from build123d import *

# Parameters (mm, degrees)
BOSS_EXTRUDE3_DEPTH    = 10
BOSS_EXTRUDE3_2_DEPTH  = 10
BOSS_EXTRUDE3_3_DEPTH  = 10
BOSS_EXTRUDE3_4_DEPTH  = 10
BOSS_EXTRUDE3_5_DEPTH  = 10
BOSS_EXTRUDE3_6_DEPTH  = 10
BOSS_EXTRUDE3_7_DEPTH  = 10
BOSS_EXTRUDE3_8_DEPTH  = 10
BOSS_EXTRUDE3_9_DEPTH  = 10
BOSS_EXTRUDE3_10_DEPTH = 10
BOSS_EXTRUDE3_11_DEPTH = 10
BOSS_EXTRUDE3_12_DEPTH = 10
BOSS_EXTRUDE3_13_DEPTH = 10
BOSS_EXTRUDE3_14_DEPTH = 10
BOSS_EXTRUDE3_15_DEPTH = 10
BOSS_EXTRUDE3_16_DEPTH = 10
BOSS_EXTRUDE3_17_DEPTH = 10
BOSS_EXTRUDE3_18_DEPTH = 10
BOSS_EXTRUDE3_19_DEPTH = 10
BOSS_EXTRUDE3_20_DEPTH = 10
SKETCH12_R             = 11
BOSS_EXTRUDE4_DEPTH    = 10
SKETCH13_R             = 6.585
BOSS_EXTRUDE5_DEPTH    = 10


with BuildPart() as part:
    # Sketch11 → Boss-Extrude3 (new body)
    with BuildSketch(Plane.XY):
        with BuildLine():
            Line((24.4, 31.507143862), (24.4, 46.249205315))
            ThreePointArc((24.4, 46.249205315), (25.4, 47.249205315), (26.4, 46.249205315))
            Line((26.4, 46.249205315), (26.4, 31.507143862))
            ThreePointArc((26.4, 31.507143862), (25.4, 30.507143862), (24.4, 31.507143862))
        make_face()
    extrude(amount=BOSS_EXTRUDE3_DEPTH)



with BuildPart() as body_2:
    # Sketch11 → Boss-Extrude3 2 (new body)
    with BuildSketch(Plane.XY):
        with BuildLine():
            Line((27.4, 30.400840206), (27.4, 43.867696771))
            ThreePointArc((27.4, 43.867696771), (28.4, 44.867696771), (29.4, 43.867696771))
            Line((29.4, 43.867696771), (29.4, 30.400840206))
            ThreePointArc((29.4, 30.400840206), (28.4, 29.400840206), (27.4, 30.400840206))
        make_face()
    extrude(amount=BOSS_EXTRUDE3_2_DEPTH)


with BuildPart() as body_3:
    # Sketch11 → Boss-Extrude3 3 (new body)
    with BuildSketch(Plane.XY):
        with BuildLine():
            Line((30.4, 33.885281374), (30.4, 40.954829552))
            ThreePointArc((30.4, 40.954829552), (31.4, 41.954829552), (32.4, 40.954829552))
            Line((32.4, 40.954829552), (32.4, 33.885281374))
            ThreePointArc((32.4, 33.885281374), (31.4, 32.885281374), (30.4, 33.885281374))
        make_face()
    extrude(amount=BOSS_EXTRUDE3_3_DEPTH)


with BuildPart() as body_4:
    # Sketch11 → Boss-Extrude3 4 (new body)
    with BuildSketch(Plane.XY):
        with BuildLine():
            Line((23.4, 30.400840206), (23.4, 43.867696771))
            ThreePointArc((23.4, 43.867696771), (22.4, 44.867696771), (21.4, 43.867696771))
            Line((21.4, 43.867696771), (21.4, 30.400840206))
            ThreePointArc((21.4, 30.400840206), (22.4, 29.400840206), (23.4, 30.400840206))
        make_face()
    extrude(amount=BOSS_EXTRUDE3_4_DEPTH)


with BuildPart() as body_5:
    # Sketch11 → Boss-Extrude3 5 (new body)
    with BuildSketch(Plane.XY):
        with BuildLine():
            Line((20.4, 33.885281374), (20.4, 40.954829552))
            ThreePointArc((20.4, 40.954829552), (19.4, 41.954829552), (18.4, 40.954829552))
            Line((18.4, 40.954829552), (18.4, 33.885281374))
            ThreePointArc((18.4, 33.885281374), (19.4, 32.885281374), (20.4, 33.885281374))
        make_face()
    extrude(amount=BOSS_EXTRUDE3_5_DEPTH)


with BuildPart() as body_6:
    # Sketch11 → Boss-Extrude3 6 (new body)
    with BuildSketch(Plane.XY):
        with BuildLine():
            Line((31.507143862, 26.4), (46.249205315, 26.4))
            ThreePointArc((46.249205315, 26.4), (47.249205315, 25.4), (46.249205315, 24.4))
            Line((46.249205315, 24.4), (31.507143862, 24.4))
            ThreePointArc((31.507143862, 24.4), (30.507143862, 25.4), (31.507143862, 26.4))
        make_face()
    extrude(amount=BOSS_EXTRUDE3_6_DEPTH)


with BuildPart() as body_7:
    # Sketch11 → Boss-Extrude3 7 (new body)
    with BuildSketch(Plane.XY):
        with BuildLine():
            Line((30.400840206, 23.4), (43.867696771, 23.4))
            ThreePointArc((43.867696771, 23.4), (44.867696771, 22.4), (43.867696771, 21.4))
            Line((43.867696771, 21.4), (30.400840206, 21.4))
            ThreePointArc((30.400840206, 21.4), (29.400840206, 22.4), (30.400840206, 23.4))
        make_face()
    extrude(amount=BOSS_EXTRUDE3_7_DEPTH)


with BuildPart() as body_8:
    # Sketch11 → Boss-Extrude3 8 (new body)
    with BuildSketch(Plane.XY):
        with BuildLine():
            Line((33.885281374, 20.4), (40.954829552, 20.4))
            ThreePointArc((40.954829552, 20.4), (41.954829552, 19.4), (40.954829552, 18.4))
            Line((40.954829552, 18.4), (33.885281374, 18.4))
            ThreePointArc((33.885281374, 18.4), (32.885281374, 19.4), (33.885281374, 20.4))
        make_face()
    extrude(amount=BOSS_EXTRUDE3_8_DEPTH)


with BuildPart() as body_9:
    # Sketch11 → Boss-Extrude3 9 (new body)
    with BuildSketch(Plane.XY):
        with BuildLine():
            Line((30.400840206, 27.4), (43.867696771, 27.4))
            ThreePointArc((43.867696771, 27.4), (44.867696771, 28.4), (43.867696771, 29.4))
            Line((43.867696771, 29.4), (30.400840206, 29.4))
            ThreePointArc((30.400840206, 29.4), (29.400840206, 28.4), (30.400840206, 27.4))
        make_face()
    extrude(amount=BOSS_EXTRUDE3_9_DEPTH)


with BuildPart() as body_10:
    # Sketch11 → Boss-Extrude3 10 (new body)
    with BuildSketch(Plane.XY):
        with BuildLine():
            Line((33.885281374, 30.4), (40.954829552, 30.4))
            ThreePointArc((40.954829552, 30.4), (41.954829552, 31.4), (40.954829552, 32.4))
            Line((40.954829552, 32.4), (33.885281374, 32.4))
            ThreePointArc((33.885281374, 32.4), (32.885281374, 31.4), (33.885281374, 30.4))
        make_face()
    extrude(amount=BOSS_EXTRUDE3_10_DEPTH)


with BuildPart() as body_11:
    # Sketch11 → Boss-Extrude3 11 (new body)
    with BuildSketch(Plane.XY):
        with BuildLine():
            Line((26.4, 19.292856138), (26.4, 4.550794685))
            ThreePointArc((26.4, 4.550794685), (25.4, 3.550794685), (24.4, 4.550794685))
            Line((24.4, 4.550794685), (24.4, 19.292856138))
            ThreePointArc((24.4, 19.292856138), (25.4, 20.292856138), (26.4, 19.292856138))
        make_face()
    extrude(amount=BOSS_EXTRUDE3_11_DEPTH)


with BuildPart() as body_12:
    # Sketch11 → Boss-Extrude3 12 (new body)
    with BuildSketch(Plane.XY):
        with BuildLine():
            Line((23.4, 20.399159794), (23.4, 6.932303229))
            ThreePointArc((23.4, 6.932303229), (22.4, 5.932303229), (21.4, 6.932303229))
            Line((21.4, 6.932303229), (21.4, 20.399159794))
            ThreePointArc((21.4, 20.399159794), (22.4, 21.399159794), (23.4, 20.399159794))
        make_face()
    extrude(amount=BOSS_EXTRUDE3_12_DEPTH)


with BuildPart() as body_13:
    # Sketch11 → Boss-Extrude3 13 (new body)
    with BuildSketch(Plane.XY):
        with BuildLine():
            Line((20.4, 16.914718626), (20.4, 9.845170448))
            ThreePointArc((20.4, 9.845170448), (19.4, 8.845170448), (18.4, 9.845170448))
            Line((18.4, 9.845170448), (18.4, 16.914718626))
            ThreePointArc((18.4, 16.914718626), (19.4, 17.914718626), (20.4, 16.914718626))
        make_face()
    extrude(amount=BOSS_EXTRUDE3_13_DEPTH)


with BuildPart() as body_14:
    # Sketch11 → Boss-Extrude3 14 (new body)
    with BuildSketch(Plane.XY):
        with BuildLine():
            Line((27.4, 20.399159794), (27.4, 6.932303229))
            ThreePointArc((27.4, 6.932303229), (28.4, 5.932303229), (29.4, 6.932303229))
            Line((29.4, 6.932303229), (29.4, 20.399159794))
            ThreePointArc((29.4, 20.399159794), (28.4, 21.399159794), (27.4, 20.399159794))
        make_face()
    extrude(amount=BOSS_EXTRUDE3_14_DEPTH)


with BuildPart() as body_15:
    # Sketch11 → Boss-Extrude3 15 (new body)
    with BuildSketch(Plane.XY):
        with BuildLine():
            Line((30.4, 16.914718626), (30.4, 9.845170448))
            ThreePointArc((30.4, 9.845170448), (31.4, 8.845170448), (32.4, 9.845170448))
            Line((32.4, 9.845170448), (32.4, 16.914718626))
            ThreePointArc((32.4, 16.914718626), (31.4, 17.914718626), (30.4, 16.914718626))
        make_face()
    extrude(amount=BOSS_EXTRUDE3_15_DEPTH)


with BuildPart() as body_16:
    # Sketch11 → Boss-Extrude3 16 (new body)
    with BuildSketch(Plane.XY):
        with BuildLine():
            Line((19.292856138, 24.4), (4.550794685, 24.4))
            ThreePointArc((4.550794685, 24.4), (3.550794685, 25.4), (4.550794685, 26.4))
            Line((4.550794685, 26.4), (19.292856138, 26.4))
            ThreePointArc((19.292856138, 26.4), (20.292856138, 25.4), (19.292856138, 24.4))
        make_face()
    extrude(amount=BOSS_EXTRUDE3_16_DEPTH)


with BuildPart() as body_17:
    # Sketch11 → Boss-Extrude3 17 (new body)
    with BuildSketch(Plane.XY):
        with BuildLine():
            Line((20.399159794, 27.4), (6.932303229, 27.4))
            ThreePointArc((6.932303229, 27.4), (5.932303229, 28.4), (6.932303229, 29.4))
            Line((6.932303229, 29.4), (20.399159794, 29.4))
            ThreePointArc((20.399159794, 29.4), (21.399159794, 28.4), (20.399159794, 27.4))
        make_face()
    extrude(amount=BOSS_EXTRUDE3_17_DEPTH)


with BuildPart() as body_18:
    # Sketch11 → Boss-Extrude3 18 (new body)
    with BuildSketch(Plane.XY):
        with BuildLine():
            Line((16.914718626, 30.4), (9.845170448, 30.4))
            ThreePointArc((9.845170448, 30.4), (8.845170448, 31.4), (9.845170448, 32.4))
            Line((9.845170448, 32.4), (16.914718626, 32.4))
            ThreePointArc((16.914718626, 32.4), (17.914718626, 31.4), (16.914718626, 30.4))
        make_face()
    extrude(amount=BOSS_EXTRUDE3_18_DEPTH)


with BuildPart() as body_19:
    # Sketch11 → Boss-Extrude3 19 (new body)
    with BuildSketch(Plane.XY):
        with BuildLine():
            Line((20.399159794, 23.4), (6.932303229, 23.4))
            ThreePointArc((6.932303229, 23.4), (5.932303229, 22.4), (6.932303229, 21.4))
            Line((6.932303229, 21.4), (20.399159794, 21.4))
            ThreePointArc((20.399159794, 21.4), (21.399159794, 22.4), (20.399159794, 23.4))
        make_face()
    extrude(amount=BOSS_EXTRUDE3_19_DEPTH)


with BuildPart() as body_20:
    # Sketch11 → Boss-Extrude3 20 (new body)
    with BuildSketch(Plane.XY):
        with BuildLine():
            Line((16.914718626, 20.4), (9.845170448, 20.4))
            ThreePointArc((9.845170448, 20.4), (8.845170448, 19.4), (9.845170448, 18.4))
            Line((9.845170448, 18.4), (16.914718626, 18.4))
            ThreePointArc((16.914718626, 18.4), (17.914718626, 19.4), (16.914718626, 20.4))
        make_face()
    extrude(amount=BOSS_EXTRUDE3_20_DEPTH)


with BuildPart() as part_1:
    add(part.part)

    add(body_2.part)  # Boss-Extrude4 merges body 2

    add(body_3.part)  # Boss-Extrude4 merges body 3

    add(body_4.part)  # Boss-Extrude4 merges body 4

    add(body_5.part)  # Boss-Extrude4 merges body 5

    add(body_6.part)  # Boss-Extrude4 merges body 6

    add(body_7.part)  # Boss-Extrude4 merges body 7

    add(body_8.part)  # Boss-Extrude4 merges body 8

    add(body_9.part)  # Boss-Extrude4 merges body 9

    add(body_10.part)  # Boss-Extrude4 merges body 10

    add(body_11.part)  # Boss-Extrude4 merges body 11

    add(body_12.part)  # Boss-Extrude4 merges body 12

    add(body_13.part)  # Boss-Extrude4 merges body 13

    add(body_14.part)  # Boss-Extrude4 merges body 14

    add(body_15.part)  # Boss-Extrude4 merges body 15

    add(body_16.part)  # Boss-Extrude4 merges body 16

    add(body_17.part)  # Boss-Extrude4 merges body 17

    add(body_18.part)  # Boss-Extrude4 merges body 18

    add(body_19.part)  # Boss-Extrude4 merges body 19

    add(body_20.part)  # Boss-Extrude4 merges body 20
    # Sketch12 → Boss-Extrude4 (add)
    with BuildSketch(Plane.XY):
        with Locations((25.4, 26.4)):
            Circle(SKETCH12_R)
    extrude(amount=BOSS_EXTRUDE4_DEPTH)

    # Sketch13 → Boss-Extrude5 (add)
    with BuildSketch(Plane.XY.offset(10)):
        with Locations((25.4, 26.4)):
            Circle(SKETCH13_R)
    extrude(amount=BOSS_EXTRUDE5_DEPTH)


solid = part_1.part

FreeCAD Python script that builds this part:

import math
import FreeCAD as App
import Part
import Sketcher
Q = App.Units.Quantity

doc = App.newDocument("Part")
params = doc.addObject("Spreadsheet::Sheet", "Params")
for row, (alias, value) in enumerate([
    ("sketch1_radius", "1 mm"),
    ("pad1_length", "10 mm"),
    ("sketch2_radius", "1 mm"),
    ("pad2_length", "10 mm"),
    ("sketch3_radius", "1 mm"),
    ("pad3_length", "10 mm"),
    ("sketch4_radius", "1 mm"),
    ("pad4_length", "10 mm"),
    ("sketch5_radius", "1 mm"),
    ("pad5_length", "10 mm"),
    ("sketch6_radius", "1 mm"),
    ("pad6_length", "10 mm"),
    ("sketch7_radius", "1 mm"),
    ("pad7_length", "10 mm"),
    ("sketch8_radius", "1 mm"),
    ("pad8_length", "10 mm"),
    ("sketch9_radius", "1 mm"),
    ("pad9_length", "10 mm"),
    ("sketch10_radius", "1 mm"),
    ("pad10_length", "10 mm"),
    ("sketch11_radius", "1 mm"),
    ("pad11_length", "10 mm"),
    ("sketch12_radius", "1 mm"),
    ("pad12_length", "10 mm"),
    ("sketch13_radius", "1 mm"),
    ("pad13_length", "10 mm"),
    ("sketch14_radius", "1 mm"),
    ("pad14_length", "10 mm"),
    ("sketch15_radius", "1 mm"),
    ("pad15_length", "10 mm"),
    ("sketch16_radius", "1 mm"),
    ("pad16_length", "10 mm"),
    ("sketch17_radius", "1 mm"),
    ("pad17_length", "10 mm"),
    ("sketch18_radius", "1 mm"),
    ("pad18_length", "10 mm"),
    ("sketch19_radius", "1 mm"),
    ("pad19_length", "10 mm"),
    ("sketch20_radius", "1 mm"),
    ("pad20_length", "10 mm"),
    ("sketch21_diameter", "22 mm"),
    ("pad21_length", "10 mm"),
    ("sketch22_diameter", "13.17 mm"),
    ("pad22_length", "10 mm"),
], start=1):
    params.set(f"A{row}", alias)
    params.set(f"B{row}", "=" + value)
    params.setAlias(f"B{row}", alias)

body = doc.addObject("PartDesign::Body", "Body")

sketch1 = body.newObject("Sketcher::SketchObject", "Sketch")
sketch1.AttachmentSupport = (doc.getObject("XY_Plane"), [""])
sketch1.MapMode = "FlatFace"
sketch1.addGeometry([
    Part.LineSegment(App.Vector(24.4, 46.2, 0), App.Vector(24.4, 31.5, 0)),
    Part.ArcOfCircle(Part.Circle(App.Vector(25.4, 31.5, 0), App.Vector(0, 0, 1), 1), math.radians(180), math.radians(360)),
    Part.LineSegment(App.Vector(26.4, 31.5, 0), App.Vector(26.4, 46.2, 0)),
    Part.ArcOfCircle(Part.Circle(App.Vector(25.4, 46.2, 0), App.Vector(0, 0, 1), 1), math.radians(0), math.radians(180)),
], False)
sketch1.addConstraint([
    Sketcher.Constraint("Tangent", 0, 2, 1, 1),
    Sketcher.Constraint("Tangent", 1, 2, 2, 1),
    Sketcher.Constraint("Tangent", 2, 2, 3, 1),
    Sketcher.Constraint("Tangent", 3, 2, 0, 1),
    Sketcher.Constraint("Vertical", 0),
    Sketcher.Constraint("Vertical", 2),
    Sketcher.Constraint("Radius", 1, Q("1 mm")),
    Sketcher.Constraint("DistanceX", -1, 1, 1, 3, Q("25.4 mm")),
    Sketcher.Constraint("DistanceY", 0, 2, 0, 1, Q("14.742061 mm")),
    Sketcher.Constraint("DistanceY", -1, 1, 1, 3, Q("31.507144 mm")),
])
sketch1.setExpression("Constraints[6]", "Params.sketch1_radius")
pad1 = body.newObject("PartDesign::Pad", "Pad")
pad1.Profile = sketch1
pad1.setExpression("Length", "Params.pad1_length")
body2 = doc.addObject("PartDesign::Body", "Body001")

sketch2 = body2.newObject("Sketcher::SketchObject", "Sketch001")
sketch2.AttachmentSupport = (doc.getObject("XY_Plane001"), [""])
sketch2.MapMode = "FlatFace"
sketch2.addGeometry([
    Part.LineSegment(App.Vector(27.4, 43.9, 0), App.Vector(27.4, 30.4, 0)),
    Part.ArcOfCircle(Part.Circle(App.Vector(28.4, 30.4, 0), App.Vector(0, 0, 1), 1), math.radians(180), math.radians(360)),
    Part.LineSegment(App.Vector(29.4, 30.4, 0), App.Vector(29.4, 43.9, 0)),
    Part.ArcOfCircle(Part.Circle(App.Vector(28.4, 43.9, 0), App.Vector(0, 0, 1), 1), math.radians(0), math.radians(180)),
], False)
sketch2.addConstraint([
    Sketcher.Constraint("Tangent", 0, 2, 1, 1),
    Sketcher.Constraint("Tangent", 1, 2, 2, 1),
    Sketcher.Constraint("Tangent", 2, 2, 3, 1),
    Sketcher.Constraint("Tangent", 3, 2, 0, 1),
    Sketcher.Constraint("Vertical", 0),
    Sketcher.Constraint("Vertical", 2),
    Sketcher.Constraint("Radius", 1, Q("1 mm")),
    Sketcher.Constraint("DistanceX", -1, 1, 1, 3, Q("28.4 mm")),
    Sketcher.Constraint("DistanceY", 0, 2, 0, 1, Q("13.466857 mm")),
    Sketcher.Constraint("DistanceY", -1, 1, 1, 3, Q("30.40084 mm")),
])
sketch2.setExpression("Constraints[6]", "Params.sketch2_radius")
pad2 = body2.newObject("PartDesign::Pad", "Pad001")
pad2.Profile = sketch2
pad2.setExpression("Length", "Params.pad2_length")
body3 = doc.addObject("PartDesign::Body", "Body002")

sketch3 = body3.newObject("Sketcher::SketchObject", "Sketch002")
sketch3.AttachmentSupport = (doc.getObject("XY_Plane002"), [""])
sketch3.MapMode = "FlatFace"
sketch3.addGeometry([
    Part.LineSegment(App.Vector(30.4, 41, 0), App.Vector(30.4, 33.9, 0)),
    Part.ArcOfCircle(Part.Circle(App.Vector(31.4, 33.9, 0), App.Vector(0, 0, 1), 1), math.radians(180), math.radians(360)),
    Part.LineSegment(App.Vector(32.4, 33.9, 0), App.Vector(32.4, 41, 0)),
    Part.ArcOfCircle(Part.Circle(App.Vector(31.4, 41, 0), App.Vector(0, 0, 1), 1), math.radians(0), math.radians(180)),
], False)
sketch3.addConstraint([
    Sketcher.Constraint("Tangent", 0, 2, 1, 1),
    Sketcher.Constraint("Tangent", 1, 2, 2, 1),
    Sketcher.Constraint("Tangent", 2, 2, 3, 1),
    Sketcher.Constraint("Tangent", 3, 2, 0, 1),
    Sketcher.Constraint("Vertical", 0),
    Sketcher.Constraint("Vertical", 2),
    Sketcher.Constraint("Radius", 1, Q("1 mm")),
    Sketcher.Constraint("DistanceX", -1, 1, 1, 3, Q("31.4 mm")),
    Sketcher.Constraint("DistanceY", 0, 2, 0, 1, Q("7.069548 mm")),
    Sketcher.Constraint("DistanceY", -1, 1, 1, 3, Q("33.885281 mm")),
])
sketch3.setExpression("Constraints[6]", "Params.sketch3_radius")
pad3 = body3.newObject("PartDesign::Pad", "Pad002")
pad3.Profile = sketch3
pad3.setExpression("Length", "Params.pad3_length")
body4 = doc.addObject("PartDesign::Body", "Body003")

sketch4 = body4.newObject("Sketcher::SketchObject", "Sketch003")
sketch4.AttachmentSupport = (doc.getObject("XY_Plane003"), [""])
sketch4.MapMode = "FlatFace"
sketch4.addGeometry([
    Part.LineSegment(App.Vector(23.4, 30.4, 0), App.Vector(23.4, 43.9, 0)),
    Part.ArcOfCircle(Part.Circle(App.Vector(22.4, 43.9, 0), App.Vector(0, 0, 1), 1), math.radians(0), math.radians(180)),
    Part.LineSegment(App.Vector(21.4, 43.9, 0), App.Vector(21.4, 30.4, 0)),
    Part.ArcOfCircle(Part.Circle(App.Vector(22.4, 30.4, 0), App.Vector(0, 0, 1), 1), math.radians(180), math.radians(360)),
], False)
sketch4.addConstraint([
    Sketcher.Constraint("Tangent", 0, 2, 1, 1),
    Sketcher.Constraint("Tangent", 1, 2, 2, 1),
    Sketcher.Constraint("Tangent", 2, 2, 3, 1),
    Sketcher.Constraint("Tangent", 3, 2, 0, 1),
    Sketcher.Constraint("Vertical", 0),
    Sketcher.Constraint("Vertical", 2),
    Sketcher.Constraint("Radius", 1, Q("1 mm")),
    Sketcher.Constraint("DistanceX", -1, 1, 1, 3, Q("22.4 mm")),
    Sketcher.Constraint("DistanceY", 0, 1, 0, 2, Q("13.466857 mm")),
    Sketcher.Constraint("DistanceY", -1, 1, 3, 3, Q("30.40084 mm")),
])
sketch4.setExpression("Constraints[6]", "Params.sketch4_radius")
pad4 = body4.newObject("PartDesign::Pad", "Pad003")
pad4.Profile = sketch4
pad4.setExpression("Length", "Params.pad4_length")
body5 = doc.addObject("PartDesign::Body", "Body004")

sketch5 = body5.newObject("Sketcher::SketchObject", "Sketch004")
sketch5.AttachmentSupport = (doc.getObject("XY_Plane004"), [""])
sketch5.MapMode = "FlatFace"
sketch5.addGeometry([
    Part.LineSegment(App.Vector(20.4, 33.9, 0), App.Vector(20.4, 41, 0)),
    Part.ArcOfCircle(Part.Circle(App.Vector(19.4, 41, 0), App.Vector(0, 0, 1), 1), math.radians(0), math.radians(180)),
    Part.LineSegment(App.Vector(18.4, 41, 0), App.Vector(18.4, 33.9, 0)),
    Part.ArcOfCircle(Part.Circle(App.Vector(19.4, 33.9, 0), App.Vector(0, 0, 1), 1), math.radians(180), math.radians(360)),
], False)
sketch5.addConstraint([
    Sketcher.Constraint("Tangent", 0, 2, 1, 1),
    Sketcher.Constraint("Tangent", 1, 2, 2, 1),
    Sketcher.Constraint("Tangent", 2, 2, 3, 1),
    Sketcher.Constraint("Tangent", 3, 2, 0, 1),
    Sketcher.Constraint("Vertical", 0),
    Sketcher.Constraint("Vertical", 2),
    Sketcher.Constraint("Radius", 1, Q("1 mm")),
    Sketcher.Constraint("DistanceX", -1, 1, 1, 3, Q("19.4 mm")),
    Sketcher.Constraint("DistanceY", 0, 1, 0, 2, Q("7.069548 mm")),
    Sketcher.Constraint("DistanceY", -1, 1, 1, 3, Q("40.95483 mm")),
])
sketch5.setExpression("Constraints[6]", "Params.sketch5_radius")
pad5 = body5.newObject("PartDesign::Pad", "Pad004")
pad5.Profile = sketch5
pad5.setExpression("Length", "Params.pad5_length")
body6 = doc.addObject("PartDesign::Body", "Body005")

sketch6 = body6.newObject("Sketcher::SketchObject", "Sketch005")
sketch6.AttachmentSupport = (doc.getObject("XY_Plane005"), [""])
sketch6.MapMode = "FlatFace"
sketch6.addGeometry([
    Part.LineSegment(App.Vector(46.2, 26.4, 0), App.Vector(31.5, 26.4, 0)),
    Part.ArcOfCircle(Part.Circle(App.Vector(31.5, 25.4, 0), App.Vector(0, 0, 1), 1), math.radians(90), math.radians(270)),
    Part.LineSegment(App.Vector(31.5, 24.4, 0), App.Vector(46.2, 24.4, 0)),
    Part.ArcOfCircle(Part.Circle(App.Vector(46.2, 25.4, 0), App.Vector(0, 0, 1), 1), math.radians(-90), math.radians(90)),
], False)
sketch6.addConstraint([
    Sketcher.Constraint("Tangent", 0, 2, 1, 1),
    Sketcher.Constraint("Tangent", 1, 2, 2, 1),
    Sketcher.Constraint("Tangent", 2, 2, 3, 1),
    Sketcher.Constraint("Tangent", 3, 2, 0, 1),
    Sketcher.Constraint("Horizontal", 0),
    Sketcher.Constraint("Horizontal", 2),
    Sketcher.Constraint("Radius", 1, Q("1 mm")),
    Sketcher.Constraint("DistanceY", -1, 1, 1, 3, Q("25.4 mm")),
    Sketcher.Constraint("DistanceX", 0, 2, 0, 1, Q("14.742061 mm")),
    Sketcher.Constraint("DistanceX", -1, 1, 1, 3, Q("31.507144 mm")),
])
sketch6.setExpression("Constraints[6]", "Params.sketch6_radius")
pad6 = body6.newObject("PartDesign::Pad", "Pad005")
pad6.Profile = sketch6
pad6.setExpression("Length", "Params.pad6_length")
body7 = doc.addObject("PartDesign::Body", "Body006")

sketch7 = body7.newObject("Sketcher::SketchObject", "Sketch006")
sketch7.AttachmentSupport = (doc.getObject("XY_Plane006"), [""])
sketch7.MapMode = "FlatFace"
sketch7.addGeometry([
    Part.LineSegment(App.Vector(43.9, 23.4, 0), App.Vector(30.4, 23.4, 0)),
    Part.ArcOfCircle(Part.Circle(App.Vector(30.4, 22.4, 0), App.Vector(0, 0, 1), 1), math.radians(90), math.radians(270)),
    Part.LineSegment(App.Vector(30.4, 21.4, 0), App.Vector(43.9, 21.4, 0)),
    Part.ArcOfCircle(Part.Circle(App.Vector(43.9, 22.4, 0), App.Vector(0, 0, 1), 1), math.radians(-90), math.radians(90)),
], False)
sketch7.addConstraint([
    Sketcher.Constraint("Tangent", 0, 2, 1, 1),
    Sketcher.Constraint("Tangent", 1, 2, 2, 1),
    Sketcher.Constraint("Tangent", 2, 2, 3, 1),
    Sketcher.Constraint("Tangent", 3, 2, 0, 1),
    Sketcher.Constraint("Horizontal", 0),
    Sketcher.Constraint("Horizontal", 2),
    Sketcher.Constraint("Radius", 1, Q("1 mm")),
    Sketcher.Constraint("DistanceY", -1, 1, 1, 3, Q("22.4 mm")),
    Sketcher.Constraint("DistanceX", 0, 2, 0, 1, Q("13.466857 mm")),
    Sketcher.Constraint("DistanceX", -1, 1, 1, 3, Q("30.40084 mm")),
])
sketch7.setExpression("Constraints[6]", "Params.sketch7_radius")
pad7 = body7.newObject("PartDesign::Pad", "Pad006")
pad7.Profile = sketch7
pad7.setExpression("Length", "Params.pad7_length")
body8 = doc.addObject("PartDesign::Body", "Body007")

sketch8 = body8.newObject("Sketcher::SketchObject", "Sketch007")
sketch8.AttachmentSupport = (doc.getObject("XY_Plane007"), [""])
sketch8.MapMode = "FlatFace"
sketch8.addGeometry([
    Part.LineSegment(App.Vector(41, 20.4, 0), App.Vector(33.9, 20.4, 0)),
    Part.ArcOfCircle(Part.Circle(App.Vector(33.9, 19.4, 0), App.Vector(0, 0, 1), 1), math.radians(90), math.radians(270)),
    Part.LineSegment(App.Vector(33.9, 18.4, 0), App.Vector(41, 18.4, 0)),
    Part.ArcOfCircle(Part.Circle(App.Vector(41, 19.4, 0), App.Vector(0, 0, 1), 1), math.radians(-90), math.radians(90)),
], False)
sketch8.addConstraint([
    Sketcher.Constraint("Tangent", 0, 2, 1, 1),
    Sketcher.Constraint("Tangent", 1, 2, 2, 1),
    Sketcher.Constraint("Tangent", 2, 2, 3, 1),
    Sketcher.Constraint("Tangent", 3, 2, 0, 1),
    Sketcher.Constraint("Horizontal", 0),
    Sketcher.Constraint("Horizontal", 2),
    Sketcher.Constraint("Radius", 1, Q("1 mm")),
    Sketcher.Constraint("DistanceY", -1, 1, 1, 3, Q("19.4 mm")),
    Sketcher.Constraint("DistanceX", 0, 2, 0, 1, Q("7.069548 mm")),
    Sketcher.Constraint("DistanceX", -1, 1, 1, 3, Q("33.885281 mm")),
])
sketch8.setExpression("Constraints[6]", "Params.sketch8_radius")
pad8 = body8.newObject("PartDesign::Pad", "Pad007")
pad8.Profile = sketch8
pad8.setExpression("Length", "Params.pad8_length")
body9 = doc.addObject("PartDesign::Body", "Body008")

sketch9 = body9.newObject("Sketcher::SketchObject", "Sketch008")
sketch9.AttachmentSupport = (doc.getObject("XY_Plane008"), [""])
sketch9.MapMode = "FlatFace"
sketch9.addGeometry([
    Part.LineSegment(App.Vector(30.4, 27.4, 0), App.Vector(43.9, 27.4, 0)),
    Part.ArcOfCircle(Part.Circle(App.Vector(43.9, 28.4, 0), App.Vector(0, 0, 1), 1), math.radians(-90), math.radians(90)),
    Part.LineSegment(App.Vector(43.9, 29.4, 0), App.Vector(30.4, 29.4, 0)),
    Part.ArcOfCircle(Part.Circle(App.Vector(30.4, 28.4, 0), App.Vector(0, 0, 1), 1), math.radians(90), math.radians(270)),
], False)
sketch9.addConstraint([
    Sketcher.Constraint("Tangent", 0, 2, 1, 1),
    Sketcher.Constraint("Tangent", 1, 2, 2, 1),
    Sketcher.Constraint("Tangent", 2, 2, 3, 1),
    Sketcher.Constraint("Tangent", 3, 2, 0, 1),
    Sketcher.Constraint("Horizontal", 0),
    Sketcher.Constraint("Horizontal", 2),
    Sketcher.Constraint("Radius", 1, Q("1 mm")),
    Sketcher.Constraint("DistanceY", -1, 1, 1, 3, Q("28.4 mm")),
    Sketcher.Constraint("DistanceX", 0, 1, 0, 2, Q("13.466857 mm")),
    Sketcher.Constraint("DistanceX", -1, 1, 3, 3, Q("30.40084 mm")),
])
sketch9.setExpression("Constraints[6]", "Params.sketch9_radius")
pad9 = body9.newObject("PartDesign::Pad", "Pad008")
pad9.Profile = sketch9
pad9.setExpression("Length", "Params.pad9_length")
body10 = doc.addObject("PartDesign::Body", "Body009")

sketch10 = body10.newObject("Sketcher::SketchObject", "Sketch009")
sketch10.AttachmentSupport = (doc.getObject("XY_Plane009"), [""])
sketch10.MapMode = "FlatFace"
sketch10.addGeometry([
    Part.LineSegment(App.Vector(33.9, 30.4, 0), App.Vector(41, 30.4, 0)),
    Part.ArcOfCircle(Part.Circle(App.Vector(41, 31.4, 0), App.Vector(0, 0, 1), 1), math.radians(-90), math.radians(90)),
    Part.LineSegment(App.Vector(41, 32.4, 0), App.Vector(33.9, 32.4, 0)),
    Part.ArcOfCircle(Part.Circle(App.Vector(33.9, 31.4, 0), App.Vector(0, 0, 1), 1), math.radians(90), math.radians(270)),
], False)
sketch10.addConstraint([
    Sketcher.Constraint("Tangent", 0, 2, 1, 1),
    Sketcher.Constraint("Tangent", 1, 2, 2, 1),
    Sketcher.Constraint("Tangent", 2, 2, 3, 1),
    Sketcher.Constraint("Tangent", 3, 2, 0, 1),
    Sketcher.Constraint("Horizontal", 0),
    Sketcher.Constraint("Horizontal", 2),
    Sketcher.Constraint("Radius", 1, Q("1 mm")),
    Sketcher.Constraint("DistanceY", -1, 1, 1, 3, Q("31.4 mm")),
    Sketcher.Constraint("DistanceX", 0, 1, 0, 2, Q("7.069548 mm")),
    Sketcher.Constraint("DistanceX", -1, 1, 1, 3, Q("40.95483 mm")),
])
sketch10.setExpression("Constraints[6]", "Params.sketch10_radius")
pad10 = body10.newObject("PartDesign::Pad", "Pad009")
pad10.Profile = sketch10
pad10.setExpression("Length", "Params.pad10_length")
body11 = doc.addObject("PartDesign::Body", "Body010")

sketch11 = body11.newObject("Sketcher::SketchObject", "Sketch010")
sketch11.AttachmentSupport = (doc.getObject("XY_Plane010"), [""])
sketch11.MapMode = "FlatFace"
sketch11.addGeometry([
    Part.LineSegment(App.Vector(26.4, 4.6, 0), App.Vector(26.4, 19.3, 0)),
    Part.ArcOfCircle(Part.Circle(App.Vector(25.4, 19.3, 0), App.Vector(0, 0, 1), 1), math.radians(0), math.radians(180)),
    Part.LineSegment(App.Vector(24.4, 19.3, 0), App.Vector(24.4, 4.6, 0)),
    Part.ArcOfCircle(Part.Circle(App.Vector(25.4, 4.6, 0), App.Vector(0, 0, 1), 1), math.radians(180), math.radians(360)),
], False)
sketch11.addConstraint([
    Sketcher.Constraint("Tangent", 0, 2, 1, 1),
    Sketcher.Constraint("Tangent", 1, 2, 2, 1),
    Sketcher.Constraint("Tangent", 2, 2, 3, 1),
    Sketcher.Constraint("Tangent", 3, 2, 0, 1),
    Sketcher.Constraint("Vertical", 0),
    Sketcher.Constraint("Vertical", 2),
    Sketcher.Constraint("Radius", 1, Q("1 mm")),
    Sketcher.Constraint("DistanceX", -1, 1, 1, 3, Q("25.4 mm")),
    Sketcher.Constraint("DistanceY", 0, 1, 0, 2, Q("14.742061 mm")),
    Sketcher.Constraint("DistanceY", -1, 1, 1, 3, Q("19.292856 mm")),
])
sketch11.setExpression("Constraints[6]", "Params.sketch11_radius")
pad11 = body11.newObject("PartDesign::Pad", "Pad010")
pad11.Profile = sketch11
pad11.setExpression("Length", "Params.pad11_length")
body12 = doc.addObject("PartDesign::Body", "Body011")

sketch12 = body12.newObject("Sketcher::SketchObject", "Sketch011")
sketch12.AttachmentSupport = (doc.getObject("XY_Plane011"), [""])
sketch12.MapMode = "FlatFace"
sketch12.addGeometry([
    Part.LineSegment(App.Vector(23.4, 6.9, 0), App.Vector(23.4, 20.4, 0)),
    Part.ArcOfCircle(Part.Circle(App.Vector(22.4, 20.4, 0), App.Vector(0, 0, 1), 1), math.radians(0), math.radians(180)),
    Part.LineSegment(App.Vector(21.4, 20.4, 0), App.Vector(21.4, 6.9, 0)),
    Part.ArcOfCircle(Part.Circle(App.Vector(22.4, 6.9, 0), App.Vector(0, 0, 1), 1), math.radians(180), math.radians(360)),
], False)
sketch12.addConstraint([
    Sketcher.Constraint("Tangent", 0, 2, 1, 1),
    Sketcher.Constraint("Tangent", 1, 2, 2, 1),
    Sketcher.Constraint("Tangent", 2, 2, 3, 1),
    Sketcher.Constraint("Tangent", 3, 2, 0, 1),
    Sketcher.Constraint("Vertical", 0),
    Sketcher.Constraint("Vertical", 2),
    Sketcher.Constraint("Radius", 1, Q("1 mm")),
    Sketcher.Constraint("DistanceX", -1, 1, 1, 3, Q("22.4 mm")),
    Sketcher.Constraint("DistanceY", 0, 1, 0, 2, Q("13.466857 mm")),
    Sketcher.Constraint("DistanceY", -1, 1, 1, 3, Q("20.39916 mm")),
])
sketch12.setExpression("Constraints[6]", "Params.sketch12_radius")
pad12 = body12.newObject("PartDesign::Pad", "Pad011")
pad12.Profile = sketch12
pad12.setExpression("Length", "Params.pad12_length")
body13 = doc.addObject("PartDesign::Body", "Body012")

sketch13 = body13.newObject("Sketcher::SketchObject", "Sketch012")
sketch13.AttachmentSupport = (doc.getObject("XY_Plane012"), [""])
sketch13.MapMode = "FlatFace"
sketch13.addGeometry([
    Part.LineSegment(App.Vector(20.4, 9.8, 0), App.Vector(20.4, 16.9, 0)),
    Part.ArcOfCircle(Part.Circle(App.Vector(19.4, 16.9, 0), App.Vector(0, 0, 1), 1), math.radians(0), math.radians(180)),
    Part.LineSegment(App.Vector(18.4, 16.9, 0), App.Vector(18.4, 9.8, 0)),
    Part.ArcOfCircle(Part.Circle(App.Vector(19.4, 9.8, 0), App.Vector(0, 0, 1), 1), math.radians(180), math.radians(360)),
], False)
sketch13.addConstraint([
    Sketcher.Constraint("Tangent", 0, 2, 1, 1),
    Sketcher.Constraint("Tangent", 1, 2, 2, 1),
    Sketcher.Constraint("Tangent", 2, 2, 3, 1),
    Sketcher.Constraint("Tangent", 3, 2, 0, 1),
    Sketcher.Constraint("Vertical", 0),
    Sketcher.Constraint("Vertical", 2),
    Sketcher.Constraint("Radius", 1, Q("1 mm")),
    Sketcher.Constraint("DistanceX", -1, 1, 1, 3, Q("19.4 mm")),
    Sketcher.Constraint("DistanceY", 0, 1, 0, 2, Q("7.069548 mm")),
    Sketcher.Constraint("DistanceY", -1, 1, 1, 3, Q("16.914719 mm")),
])
sketch13.setExpression("Constraints[6]", "Params.sketch13_radius")
pad13 = body13.newObject("PartDesign::Pad", "Pad012")
pad13.Profile = sketch13
pad13.setExpression("Length", "Params.pad13_length")
body14 = doc.addObject("PartDesign::Body", "Body013")

sketch14 = body14.newObject("Sketcher::SketchObject", "Sketch013")
sketch14.AttachmentSupport = (doc.getObject("XY_Plane013"), [""])
sketch14.MapMode = "FlatFace"
sketch14.addGeometry([
    Part.LineSegment(App.Vector(27.4, 20.4, 0), App.Vector(27.4, 6.9, 0)),
    Part.ArcOfCircle(Part.Circle(App.Vector(28.4, 6.9, 0), App.Vector(0, 0, 1), 1), math.radians(180), math.radians(360)),
    Part.LineSegment(App.Vector(29.4, 6.9, 0), App.Vector(29.4, 20.4, 0)),
    Part.ArcOfCircle(Part.Circle(App.Vector(28.4, 20.4, 0), App.Vector(0, 0, 1), 1), math.radians(0), math.radians(180)),
], False)
sketch14.addConstraint([
    Sketcher.Constraint("Tangent", 0, 2, 1, 1),
    Sketcher.Constraint("Tangent", 1, 2, 2, 1),
    Sketcher.Constraint("Tangent", 2, 2, 3, 1),
    Sketcher.Constraint("Tangent", 3, 2, 0, 1),
    Sketcher.Constraint("Vertical", 0),
    Sketcher.Constraint("Vertical", 2),
    Sketcher.Constraint("Radius", 1, Q("1 mm")),
    Sketcher.Constraint("DistanceX", -1, 1, 1, 3, Q("28.4 mm")),
    Sketcher.Constraint("DistanceY", 0, 2, 0, 1, Q("13.466857 mm")),
    Sketcher.Constraint("DistanceY", -1, 1, 3, 3, Q("20.39916 mm")),
])
sketch14.setExpression("Constraints[6]", "Params.sketch14_radius")
pad14 = body14.newObject("PartDesign::Pad", "Pad013")
pad14.Profile = sketch14
pad14.setExpression("Length", "Params.pad14_length")
body15 = doc.addObject("PartDesign::Body", "Body014")

sketch15 = body15.newObject("Sketcher::SketchObject", "Sketch014")
sketch15.AttachmentSupport = (doc.getObject("XY_Plane014"), [""])
sketch15.MapMode = "FlatFace"
sketch15.addGeometry([
    Part.LineSegment(App.Vector(30.4, 16.9, 0), App.Vector(30.4, 9.8, 0)),
    Part.ArcOfCircle(Part.Circle(App.Vector(31.4, 9.8, 0), App.Vector(0, 0, 1), 1), math.radians(180), math.radians(360)),
    Part.LineSegment(App.Vector(32.4, 9.8, 0), App.Vector(32.4, 16.9, 0)),
    Part.ArcOfCircle(Part.Circle(App.Vector(31.4, 16.9, 0), App.Vector(0, 0, 1), 1), math.radians(0), math.radians(180)),
], False)
sketch15.addConstraint([
    Sketcher.Constraint("Tangent", 0, 2, 1, 1),
    Sketcher.Constraint("Tangent", 1, 2, 2, 1),
    Sketcher.Constraint("Tangent", 2, 2, 3, 1),
    Sketcher.Constraint("Tangent", 3, 2, 0, 1),
    Sketcher.Constraint("Vertical", 0),
    Sketcher.Constraint("Vertical", 2),
    Sketcher.Constraint("Radius", 1, Q("1 mm")),
    Sketcher.Constraint("DistanceX", -1, 1, 1, 3, Q("31.4 mm")),
    Sketcher.Constraint("DistanceY", 0, 2, 0, 1, Q("7.069548 mm")),
    Sketcher.Constraint("DistanceY", -1, 1, 1, 3, Q("9.84517 mm")),
])
sketch15.setExpression("Constraints[6]", "Params.sketch15_radius")
pad15 = body15.newObject("PartDesign::Pad", "Pad014")
pad15.Profile = sketch15
pad15.setExpression("Length", "Params.pad15_length")
body16 = doc.addObject("PartDesign::Body", "Body015")

sketch16 = body16.newObject("Sketcher::SketchObject", "Sketch015")
sketch16.AttachmentSupport = (doc.getObject("XY_Plane015"), [""])
sketch16.MapMode = "FlatFace"
sketch16.addGeometry([
    Part.LineSegment(App.Vector(4.6, 24.4, 0), App.Vector(19.3, 24.4, 0)),
    Part.ArcOfCircle(Part.Circle(App.Vector(19.3, 25.4, 0), App.Vector(0, 0, 1), 1), math.radians(-90), math.radians(90)),
    Part.LineSegment(App.Vector(19.3, 26.4, 0), App.Vector(4.6, 26.4, 0)),
    Part.ArcOfCircle(Part.Circle(App.Vector(4.6, 25.4, 0), App.Vector(0, 0, 1), 1), math.radians(90), math.radians(270)),
], False)
sketch16.addConstraint([
    Sketcher.Constraint("Tangent", 0, 2, 1, 1),
    Sketcher.Constraint("Tangent", 1, 2, 2, 1),
    Sketcher.Constraint("Tangent", 2, 2, 3, 1),
    Sketcher.Constraint("Tangent", 3, 2, 0, 1),
    Sketcher.Constraint("Horizontal", 0),
    Sketcher.Constraint("Horizontal", 2),
    Sketcher.Constraint("Radius", 1, Q("1 mm")),
    Sketcher.Constraint("DistanceY", -1, 1, 1, 3, Q("25.4 mm")),
    Sketcher.Constraint("DistanceX", 0, 1, 0, 2, Q("14.742061 mm")),
    Sketcher.Constraint("DistanceX", -1, 1, 1, 3, Q("19.292856 mm")),
])
sketch16.setExpression("Constraints[6]", "Params.sketch16_radius")
pad16 = body16.newObject("PartDesign::Pad", "Pad015")
pad16.Profile = sketch16
pad16.setExpression("Length", "Params.pad16_length")
body17 = doc.addObject("PartDesign::Body", "Body016")

sketch17 = body17.newObject("Sketcher::SketchObject", "Sketch016")
sketch17.AttachmentSupport = (doc.getObject("XY_Plane016"), [""])
sketch17.MapMode = "FlatFace"
sketch17.addGeometry([
    Part.LineSegment(App.Vector(6.9, 27.4, 0), App.Vector(20.4, 27.4, 0)),
    Part.ArcOfCircle(Part.Circle(App.Vector(20.4, 28.4, 0), App.Vector(0, 0, 1), 1), math.radians(-90), math.radians(90)),
    Part.LineSegment(App.Vector(20.4, 29.4, 0), App.Vector(6.9, 29.4, 0)),
    Part.ArcOfCircle(Part.Circle(App.Vector(6.9, 28.4, 0), App.Vector(0, 0, 1), 1), math.radians(90), math.radians(270)),
], False)
sketch17.addConstraint([
    Sketcher.Constraint("Tangent", 0, 2, 1, 1),
    Sketcher.Constraint("Tangent", 1, 2, 2, 1),
    Sketcher.Constraint("Tangent", 2, 2, 3, 1),
    Sketcher.Constraint("Tangent", 3, 2, 0, 1),
    Sketcher.Constraint("Horizontal", 0),
    Sketcher.Constraint("Horizontal", 2),
    Sketcher.Constraint("Radius", 1, Q("1 mm")),
    Sketcher.Constraint("DistanceY", -1, 1, 1, 3, Q("28.4 mm")),
    Sketcher.Constraint("DistanceX", 0, 1, 0, 2, Q("13.466857 mm")),
    Sketcher.Constraint("DistanceX", -1, 1, 1, 3, Q("20.39916 mm")),
])
sketch17.setExpression("Constraints[6]", "Params.sketch17_radius")
pad17 = body17.newObject("PartDesign::Pad", "Pad016")
pad17.Profile = sketch17
pad17.setExpression("Length", "Params.pad17_length")
body18 = doc.addObject("PartDesign::Body", "Body017")

sketch18 = body18.newObject("Sketcher::SketchObject", "Sketch017")
sketch18.AttachmentSupport = (doc.getObject("XY_Plane017"), [""])
sketch18.MapMode = "FlatFace"
sketch18.addGeometry([
    Part.LineSegment(App.Vector(9.8, 30.4, 0), App.Vector(16.9, 30.4, 0)),
    Part.ArcOfCircle(Part.Circle(App.Vector(16.9, 31.4, 0), App.Vector(0, 0, 1), 1), math.radians(-90), math.radians(90)),
    Part.LineSegment(App.Vector(16.9, 32.4, 0), App.Vector(9.8, 32.4, 0)),
    Part.ArcOfCircle(Part.Circle(App.Vector(9.8, 31.4, 0), App.Vector(0, 0, 1), 1), math.radians(90), math.radians(270)),
], False)
sketch18.addConstraint([
    Sketcher.Constraint("Tangent", 0, 2, 1, 1),
    Sketcher.Constraint("Tangent", 1, 2, 2, 1),
    Sketcher.Constraint("Tangent", 2, 2, 3, 1),
    Sketcher.Constraint("Tangent", 3, 2, 0, 1),
    Sketcher.Constraint("Horizontal", 0),
    Sketcher.Constraint("Horizontal", 2),
    Sketcher.Constraint("Radius", 1, Q("1 mm")),
    Sketcher.Constraint("DistanceY", -1, 1, 1, 3, Q("31.4 mm")),
    Sketcher.Constraint("DistanceX", 0, 1, 0, 2, Q("7.069548 mm")),
    Sketcher.Constraint("DistanceX", -1, 1, 1, 3, Q("16.914719 mm")),
])
sketch18.setExpression("Constraints[6]", "Params.sketch18_radius")
pad18 = body18.newObject("PartDesign::Pad", "Pad017")
pad18.Profile = sketch18
pad18.setExpression("Length", "Params.pad18_length")
body19 = doc.addObject("PartDesign::Body", "Body018")

sketch19 = body19.newObject("Sketcher::SketchObject", "Sketch018")
sketch19.AttachmentSupport = (doc.getObject("XY_Plane018"), [""])
sketch19.MapMode = "FlatFace"
sketch19.addGeometry([
    Part.LineSegment(App.Vector(20.4, 23.4, 0), App.Vector(6.9, 23.4, 0)),
    Part.ArcOfCircle(Part.Circle(App.Vector(6.9, 22.4, 0), App.Vector(0, 0, 1), 1), math.radians(90), math.radians(270)),
    Part.LineSegment(App.Vector(6.9, 21.4, 0), App.Vector(20.4, 21.4, 0)),
    Part.ArcOfCircle(Part.Circle(App.Vector(20.4, 22.4, 0), App.Vector(0, 0, 1), 1), math.radians(-90), math.radians(90)),
], False)
sketch19.addConstraint([
    Sketcher.Constraint("Tangent", 0, 2, 1, 1),
    Sketcher.Constraint("Tangent", 1, 2, 2, 1),
    Sketcher.Constraint("Tangent", 2, 2, 3, 1),
    Sketcher.Constraint("Tangent", 3, 2, 0, 1),
    Sketcher.Constraint("Horizontal", 0),
    Sketcher.Constraint("Horizontal", 2),
    Sketcher.Constraint("Radius", 1, Q("1 mm")),
    Sketcher.Constraint("DistanceY", -1, 1, 1, 3, Q("22.4 mm")),
    Sketcher.Constraint("DistanceX", 0, 2, 0, 1, Q("13.466857 mm")),
    Sketcher.Constraint("DistanceX", -1, 1, 3, 3, Q("20.39916 mm")),
])
sketch19.setExpression("Constraints[6]", "Params.sketch19_radius")
pad19 = body19.newObject("PartDesign::Pad", "Pad018")
pad19.Profile = sketch19
pad19.setExpression("Length", "Params.pad19_length")
body20 = doc.addObject("PartDesign::Body", "Body019")

sketch20 = body20.newObject("Sketcher::SketchObject", "Sketch019")
sketch20.AttachmentSupport = (doc.getObject("XY_Plane019"), [""])
sketch20.MapMode = "FlatFace"
sketch20.addGeometry([
    Part.LineSegment(App.Vector(16.9, 20.4, 0), App.Vector(9.8, 20.4, 0)),
    Part.ArcOfCircle(Part.Circle(App.Vector(9.8, 19.4, 0), App.Vector(0, 0, 1), 1), math.radians(90), math.radians(270)),
    Part.LineSegment(App.Vector(9.8, 18.4, 0), App.Vector(16.9, 18.4, 0)),
    Part.ArcOfCircle(Part.Circle(App.Vector(16.9, 19.4, 0), App.Vector(0, 0, 1), 1), math.radians(-90), math.radians(90)),
], False)
sketch20.addConstraint([
    Sketcher.Constraint("Tangent", 0, 2, 1, 1),
    Sketcher.Constraint("Tangent", 1, 2, 2, 1),
    Sketcher.Constraint("Tangent", 2, 2, 3, 1),
    Sketcher.Constraint("Tangent", 3, 2, 0, 1),
    Sketcher.Constraint("Horizontal", 0),
    Sketcher.Constraint("Horizontal", 2),
    Sketcher.Constraint("Radius", 1, Q("1 mm")),
    Sketcher.Constraint("DistanceY", -1, 1, 1, 3, Q("19.4 mm")),
    Sketcher.Constraint("DistanceX", 0, 2, 0, 1, Q("7.069548 mm")),
    Sketcher.Constraint("DistanceX", -1, 1, 1, 3, Q("9.84517 mm")),
])
sketch20.setExpression("Constraints[6]", "Params.sketch20_radius")
pad20 = body20.newObject("PartDesign::Pad", "Pad019")
pad20.Profile = sketch20
pad20.setExpression("Length", "Params.pad20_length")
body.AllowCompound = True
doc.recompute()

boolean = body.newObject("PartDesign::Boolean", "Boolean")
boolean.Type = "Fuse"
boolean.addObjects([body2])
doc.recompute()

boolean2 = body.newObject("PartDesign::Boolean", "Boolean001")
boolean2.Type = "Fuse"
boolean2.addObjects([body3])
doc.recompute()

boolean3 = body.newObject("PartDesign::Boolean", "Boolean002")
boolean3.Type = "Fuse"
boolean3.addObjects([body4])
doc.recompute()

boolean4 = body.newObject("PartDesign::Boolean", "Boolean003")
boolean4.Type = "Fuse"
boolean4.addObjects([body5])
doc.recompute()

boolean5 = body.newObject("PartDesign::Boolean", "Boolean004")
boolean5.Type = "Fuse"
boolean5.addObjects([body6])
doc.recompute()

boolean6 = body.newObject("PartDesign::Boolean", "Boolean005")
boolean6.Type = "Fuse"
boolean6.addObjects([body7])
doc.recompute()

boolean7 = body.newObject("PartDesign::Boolean", "Boolean006")
boolean7.Type = "Fuse"
boolean7.addObjects([body8])
doc.recompute()

boolean8 = body.newObject("PartDesign::Boolean", "Boolean007")
boolean8.Type = "Fuse"
boolean8.addObjects([body9])
doc.recompute()

boolean9 = body.newObject("PartDesign::Boolean", "Boolean008")
boolean9.Type = "Fuse"
boolean9.addObjects([body10])
doc.recompute()

boolean10 = body.newObject("PartDesign::Boolean", "Boolean009")
boolean10.Type = "Fuse"
boolean10.addObjects([body11])
doc.recompute()

boolean11 = body.newObject("PartDesign::Boolean", "Boolean010")
boolean11.Type = "Fuse"
boolean11.addObjects([body12])
doc.recompute()

boolean12 = body.newObject("PartDesign::Boolean", "Boolean011")
boolean12.Type = "Fuse"
boolean12.addObjects([body13])
doc.recompute()

boolean13 = body.newObject("PartDesign::Boolean", "Boolean012")
boolean13.Type = "Fuse"
boolean13.addObjects([body14])
doc.recompute()

boolean14 = body.newObject("PartDesign::Boolean", "Boolean013")
boolean14.Type = "Fuse"
boolean14.addObjects([body15])
doc.recompute()

boolean15 = body.newObject("PartDesign::Boolean", "Boolean014")
boolean15.Type = "Fuse"
boolean15.addObjects([body16])
doc.recompute()

boolean16 = body.newObject("PartDesign::Boolean", "Boolean015")
boolean16.Type = "Fuse"
boolean16.addObjects([body17])
doc.recompute()

boolean17 = body.newObject("PartDesign::Boolean", "Boolean016")
boolean17.Type = "Fuse"
boolean17.addObjects([body18])
doc.recompute()

boolean18 = body.newObject("PartDesign::Boolean", "Boolean017")
boolean18.Type = "Fuse"
boolean18.addObjects([body19])
doc.recompute()

boolean19 = body.newObject("PartDesign::Boolean", "Boolean018")
boolean19.Type = "Fuse"
boolean19.addObjects([body20])

sketch21 = body.newObject("Sketcher::SketchObject", "Sketch020")
sketch21.AttachmentSupport = (doc.getObject("XY_Plane"), [""])
sketch21.MapMode = "FlatFace"
sketch21.addGeometry(Part.Circle(App.Vector(25, 26, 0), App.Vector(0, 0, 1), 11), False)
sketch21.addConstraint([
    Sketcher.Constraint("Diameter", 0, Q("22 mm")),
    Sketcher.Constraint("DistanceX", -1, 1, 0, 3, Q("25.4 mm")),
    Sketcher.Constraint("DistanceY", -1, 1, 0, 3, Q("26.4 mm")),
])
sketch21.setExpression("Constraints[0]", "Params.sketch21_diameter")
pad21 = body.newObject("PartDesign::Pad", "Pad020")
pad21.Profile = sketch21
pad21.setExpression("Length", "Params.pad21_length")

sketch22 = body.newObject("Sketcher::SketchObject", "Sketch021")
sketch22.AttachmentSupport = (doc.getObject("XY_Plane"), [""])
sketch22.MapMode = "FlatFace"
sketch22.AttachmentOffset = App.Placement(App.Vector(0, 0, 10), App.Rotation())
sketch22.addGeometry(Part.Circle(App.Vector(25, 26, 0), App.Vector(0, 0, 1), 7), False)
sketch22.addConstraint([
    Sketcher.Constraint("Diameter", 0, Q("13.17 mm")),
    Sketcher.Constraint("DistanceX", -1, 1, 0, 3, Q("25.4 mm")),
    Sketcher.Constraint("DistanceY", -1, 1, 0, 3, Q("26.4 mm")),
])
sketch22.setExpression("Constraints[0]", "Params.sketch22_diameter")
pad22 = body.newObject("PartDesign::Pad", "Pad021")
pad22.Profile = sketch22
pad22.setExpression("Length", "Params.pad22_length")

doc.recompute()
